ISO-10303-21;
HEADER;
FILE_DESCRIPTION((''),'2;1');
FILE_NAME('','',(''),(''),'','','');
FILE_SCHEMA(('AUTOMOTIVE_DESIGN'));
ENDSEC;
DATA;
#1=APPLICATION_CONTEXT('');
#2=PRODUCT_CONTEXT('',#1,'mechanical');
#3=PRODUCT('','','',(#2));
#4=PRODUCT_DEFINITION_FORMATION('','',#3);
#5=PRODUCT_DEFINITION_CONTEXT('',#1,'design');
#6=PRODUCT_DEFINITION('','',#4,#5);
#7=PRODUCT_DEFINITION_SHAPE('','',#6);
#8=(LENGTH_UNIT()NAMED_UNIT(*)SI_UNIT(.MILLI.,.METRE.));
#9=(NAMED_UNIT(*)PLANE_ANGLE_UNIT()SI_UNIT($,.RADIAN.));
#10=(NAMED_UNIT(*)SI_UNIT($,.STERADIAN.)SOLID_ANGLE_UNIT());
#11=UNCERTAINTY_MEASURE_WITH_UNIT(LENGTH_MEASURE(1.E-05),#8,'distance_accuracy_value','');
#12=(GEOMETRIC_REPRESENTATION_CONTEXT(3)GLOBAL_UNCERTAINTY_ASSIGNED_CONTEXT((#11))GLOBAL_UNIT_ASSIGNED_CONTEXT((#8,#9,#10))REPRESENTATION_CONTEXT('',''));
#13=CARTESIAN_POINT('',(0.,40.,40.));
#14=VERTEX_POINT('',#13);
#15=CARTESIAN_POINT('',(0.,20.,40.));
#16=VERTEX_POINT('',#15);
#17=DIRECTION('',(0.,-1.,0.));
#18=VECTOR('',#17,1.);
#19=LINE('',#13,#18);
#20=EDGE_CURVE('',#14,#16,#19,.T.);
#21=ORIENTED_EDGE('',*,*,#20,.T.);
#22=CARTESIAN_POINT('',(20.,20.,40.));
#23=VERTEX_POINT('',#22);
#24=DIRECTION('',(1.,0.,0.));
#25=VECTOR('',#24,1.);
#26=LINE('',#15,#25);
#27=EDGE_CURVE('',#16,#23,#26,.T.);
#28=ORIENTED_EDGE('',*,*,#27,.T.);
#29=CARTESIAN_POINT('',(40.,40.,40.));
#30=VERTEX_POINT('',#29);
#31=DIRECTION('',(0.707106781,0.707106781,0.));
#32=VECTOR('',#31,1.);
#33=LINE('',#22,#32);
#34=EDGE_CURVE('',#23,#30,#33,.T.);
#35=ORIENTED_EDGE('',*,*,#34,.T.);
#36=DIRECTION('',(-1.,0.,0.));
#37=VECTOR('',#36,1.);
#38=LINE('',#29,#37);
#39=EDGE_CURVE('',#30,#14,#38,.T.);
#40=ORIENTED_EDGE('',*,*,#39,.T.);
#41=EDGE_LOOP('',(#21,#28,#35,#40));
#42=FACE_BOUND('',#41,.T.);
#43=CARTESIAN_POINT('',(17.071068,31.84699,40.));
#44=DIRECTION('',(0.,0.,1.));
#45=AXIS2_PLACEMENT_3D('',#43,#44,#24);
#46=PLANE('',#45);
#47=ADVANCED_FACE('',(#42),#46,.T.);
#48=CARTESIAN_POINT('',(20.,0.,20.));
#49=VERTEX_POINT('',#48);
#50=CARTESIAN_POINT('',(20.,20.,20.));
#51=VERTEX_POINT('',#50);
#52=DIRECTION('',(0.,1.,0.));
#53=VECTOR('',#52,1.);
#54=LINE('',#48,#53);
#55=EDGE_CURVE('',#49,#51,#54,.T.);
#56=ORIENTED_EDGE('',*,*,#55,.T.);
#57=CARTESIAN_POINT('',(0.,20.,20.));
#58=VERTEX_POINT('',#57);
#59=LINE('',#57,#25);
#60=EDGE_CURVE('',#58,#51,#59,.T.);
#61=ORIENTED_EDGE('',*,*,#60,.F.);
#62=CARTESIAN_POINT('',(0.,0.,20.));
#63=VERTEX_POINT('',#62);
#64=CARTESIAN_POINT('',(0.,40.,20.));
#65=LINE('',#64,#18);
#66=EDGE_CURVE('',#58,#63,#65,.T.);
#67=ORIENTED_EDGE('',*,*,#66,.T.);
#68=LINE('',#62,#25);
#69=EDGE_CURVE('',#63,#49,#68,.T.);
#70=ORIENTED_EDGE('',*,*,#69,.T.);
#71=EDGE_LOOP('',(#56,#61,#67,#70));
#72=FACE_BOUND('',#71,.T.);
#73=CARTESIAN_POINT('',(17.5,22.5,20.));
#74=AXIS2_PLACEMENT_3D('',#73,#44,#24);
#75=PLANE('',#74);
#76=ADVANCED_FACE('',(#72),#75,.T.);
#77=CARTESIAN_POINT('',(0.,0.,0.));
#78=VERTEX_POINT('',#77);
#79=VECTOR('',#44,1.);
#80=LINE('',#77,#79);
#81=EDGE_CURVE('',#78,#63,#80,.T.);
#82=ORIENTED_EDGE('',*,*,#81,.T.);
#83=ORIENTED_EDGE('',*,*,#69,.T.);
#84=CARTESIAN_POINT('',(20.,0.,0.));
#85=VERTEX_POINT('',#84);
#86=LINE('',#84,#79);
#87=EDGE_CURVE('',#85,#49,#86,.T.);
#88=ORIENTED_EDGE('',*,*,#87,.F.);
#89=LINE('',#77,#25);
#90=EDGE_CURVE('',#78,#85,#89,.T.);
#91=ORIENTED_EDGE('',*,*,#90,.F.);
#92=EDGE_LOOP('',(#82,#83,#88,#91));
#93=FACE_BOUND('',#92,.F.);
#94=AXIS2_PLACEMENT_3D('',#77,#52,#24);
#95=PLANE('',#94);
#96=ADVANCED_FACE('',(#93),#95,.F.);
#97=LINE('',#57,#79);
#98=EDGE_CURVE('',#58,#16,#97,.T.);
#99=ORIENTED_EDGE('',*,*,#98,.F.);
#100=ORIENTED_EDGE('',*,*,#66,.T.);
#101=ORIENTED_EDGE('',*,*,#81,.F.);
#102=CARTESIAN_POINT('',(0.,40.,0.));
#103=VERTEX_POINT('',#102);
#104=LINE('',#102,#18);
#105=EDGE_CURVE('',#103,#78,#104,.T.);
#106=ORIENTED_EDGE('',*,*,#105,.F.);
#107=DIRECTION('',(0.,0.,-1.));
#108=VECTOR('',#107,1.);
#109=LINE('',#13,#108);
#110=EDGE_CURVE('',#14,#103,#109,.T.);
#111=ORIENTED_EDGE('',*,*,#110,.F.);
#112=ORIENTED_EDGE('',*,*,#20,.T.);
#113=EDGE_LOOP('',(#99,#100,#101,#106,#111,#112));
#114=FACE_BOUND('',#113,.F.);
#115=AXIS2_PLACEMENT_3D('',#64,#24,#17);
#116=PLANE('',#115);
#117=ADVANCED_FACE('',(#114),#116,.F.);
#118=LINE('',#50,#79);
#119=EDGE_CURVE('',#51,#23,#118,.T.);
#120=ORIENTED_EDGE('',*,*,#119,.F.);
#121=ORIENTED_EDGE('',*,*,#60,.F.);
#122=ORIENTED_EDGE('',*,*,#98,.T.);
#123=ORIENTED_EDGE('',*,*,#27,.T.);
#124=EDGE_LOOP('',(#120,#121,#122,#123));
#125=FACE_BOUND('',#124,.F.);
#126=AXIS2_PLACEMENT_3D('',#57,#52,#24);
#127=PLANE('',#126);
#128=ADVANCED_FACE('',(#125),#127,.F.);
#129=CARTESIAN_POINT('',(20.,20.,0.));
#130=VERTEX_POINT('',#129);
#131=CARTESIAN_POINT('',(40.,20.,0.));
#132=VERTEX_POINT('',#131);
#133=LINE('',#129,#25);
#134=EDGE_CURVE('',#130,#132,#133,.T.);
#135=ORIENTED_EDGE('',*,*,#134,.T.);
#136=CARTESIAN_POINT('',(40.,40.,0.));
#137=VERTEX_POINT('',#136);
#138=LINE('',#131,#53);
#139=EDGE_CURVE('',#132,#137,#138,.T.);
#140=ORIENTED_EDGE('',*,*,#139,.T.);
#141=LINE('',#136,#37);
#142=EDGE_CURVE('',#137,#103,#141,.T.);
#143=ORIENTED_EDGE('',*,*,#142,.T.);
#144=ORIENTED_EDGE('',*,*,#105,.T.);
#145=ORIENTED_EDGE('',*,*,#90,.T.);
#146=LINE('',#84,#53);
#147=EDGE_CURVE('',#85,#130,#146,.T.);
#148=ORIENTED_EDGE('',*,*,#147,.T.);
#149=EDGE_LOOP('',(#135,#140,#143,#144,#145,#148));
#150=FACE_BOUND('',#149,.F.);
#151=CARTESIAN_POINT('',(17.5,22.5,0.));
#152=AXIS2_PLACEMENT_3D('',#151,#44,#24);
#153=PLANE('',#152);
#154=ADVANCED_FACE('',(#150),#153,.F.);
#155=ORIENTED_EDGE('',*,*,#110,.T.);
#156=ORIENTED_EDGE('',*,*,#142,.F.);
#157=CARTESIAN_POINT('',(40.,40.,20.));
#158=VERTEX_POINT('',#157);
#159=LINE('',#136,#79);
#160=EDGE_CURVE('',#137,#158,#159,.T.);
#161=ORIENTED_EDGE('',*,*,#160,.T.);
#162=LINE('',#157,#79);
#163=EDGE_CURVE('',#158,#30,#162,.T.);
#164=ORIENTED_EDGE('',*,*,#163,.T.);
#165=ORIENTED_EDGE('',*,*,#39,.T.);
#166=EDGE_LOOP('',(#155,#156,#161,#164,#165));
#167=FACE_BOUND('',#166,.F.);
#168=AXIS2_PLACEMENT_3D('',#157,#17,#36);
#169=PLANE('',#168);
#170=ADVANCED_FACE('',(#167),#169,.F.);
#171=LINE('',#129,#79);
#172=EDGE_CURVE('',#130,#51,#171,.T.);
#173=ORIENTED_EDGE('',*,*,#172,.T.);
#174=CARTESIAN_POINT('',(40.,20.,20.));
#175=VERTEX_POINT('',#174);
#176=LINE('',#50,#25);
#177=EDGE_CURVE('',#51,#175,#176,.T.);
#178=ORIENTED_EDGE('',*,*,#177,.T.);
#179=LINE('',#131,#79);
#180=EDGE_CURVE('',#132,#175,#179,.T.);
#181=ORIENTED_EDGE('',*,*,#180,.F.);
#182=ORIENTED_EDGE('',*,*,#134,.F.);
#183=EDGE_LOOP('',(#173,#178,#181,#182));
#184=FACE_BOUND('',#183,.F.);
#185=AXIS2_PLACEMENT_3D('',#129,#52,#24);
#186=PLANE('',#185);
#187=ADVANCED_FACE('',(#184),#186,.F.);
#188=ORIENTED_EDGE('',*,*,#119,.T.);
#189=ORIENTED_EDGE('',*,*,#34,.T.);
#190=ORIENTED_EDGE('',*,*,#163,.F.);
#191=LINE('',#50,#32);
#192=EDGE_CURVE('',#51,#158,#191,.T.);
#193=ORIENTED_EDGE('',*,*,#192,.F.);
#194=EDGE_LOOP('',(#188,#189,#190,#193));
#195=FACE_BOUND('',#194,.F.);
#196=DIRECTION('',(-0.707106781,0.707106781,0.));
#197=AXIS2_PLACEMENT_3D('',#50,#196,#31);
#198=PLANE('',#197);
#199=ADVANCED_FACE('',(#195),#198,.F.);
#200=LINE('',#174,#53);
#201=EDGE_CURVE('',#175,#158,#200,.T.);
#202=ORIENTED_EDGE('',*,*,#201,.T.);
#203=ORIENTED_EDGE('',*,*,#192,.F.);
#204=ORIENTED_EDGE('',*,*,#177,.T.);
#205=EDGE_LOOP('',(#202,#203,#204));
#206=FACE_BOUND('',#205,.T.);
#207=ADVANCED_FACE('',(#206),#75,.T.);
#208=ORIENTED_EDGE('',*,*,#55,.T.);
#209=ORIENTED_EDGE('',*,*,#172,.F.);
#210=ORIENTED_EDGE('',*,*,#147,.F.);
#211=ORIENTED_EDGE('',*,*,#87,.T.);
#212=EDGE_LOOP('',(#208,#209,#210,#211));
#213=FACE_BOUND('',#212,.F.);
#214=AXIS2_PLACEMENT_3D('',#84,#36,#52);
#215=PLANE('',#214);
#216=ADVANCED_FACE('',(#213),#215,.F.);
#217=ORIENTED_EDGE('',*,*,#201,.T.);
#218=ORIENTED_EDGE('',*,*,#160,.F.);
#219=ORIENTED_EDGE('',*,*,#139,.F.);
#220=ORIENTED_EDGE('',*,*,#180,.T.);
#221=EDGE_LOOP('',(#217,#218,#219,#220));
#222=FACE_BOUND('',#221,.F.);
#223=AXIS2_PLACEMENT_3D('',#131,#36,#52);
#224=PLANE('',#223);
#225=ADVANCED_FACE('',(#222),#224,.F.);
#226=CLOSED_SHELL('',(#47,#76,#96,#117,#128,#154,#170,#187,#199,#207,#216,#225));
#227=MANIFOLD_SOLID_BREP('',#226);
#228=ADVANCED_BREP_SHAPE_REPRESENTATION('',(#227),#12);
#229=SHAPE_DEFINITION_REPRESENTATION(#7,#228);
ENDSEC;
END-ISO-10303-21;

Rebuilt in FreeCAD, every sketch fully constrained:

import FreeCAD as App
import Part
import Sketcher
from FreeCAD import Vector
Q = App.Units.Quantity


def add_polygon(sketch, points):
    """Adds a closed chain of lines whose ends are joined by coincident constraints."""
    first, n = sketch.GeometryCount, len(points)
    for a, b in zip(points, points[1:] + points[:1]):
        sketch.addGeometry(Part.LineSegment(App.Vector(*a, 0), App.Vector(*b, 0)), False)
    for i in range(n):
        sketch.addConstraint(Sketcher.Constraint("Coincident", first + i, 2, first + (i + 1) % n, 1))

doc = App.newDocument("Part")
body = doc.addObject("PartDesign::Body", "Body")

# Sketch on XY plane
sketch1 = doc.addObject("Sketcher::SketchObject", "Sketch")
body.addObject(sketch1)
sketch1.AttachmentSupport = (doc.XY_Plane, [""])
sketch1.MapMode = "FlatFace"
add_polygon(sketch1, [(0, 40), (0, 0), (20, 0), (20, 20), (40, 20), (40, 40)])  # lines 0-5
sketch1.addConstraint([
    Sketcher.Constraint("Vertical", 0),
    Sketcher.Constraint("Horizontal", 1),
    Sketcher.Constraint("Vertical", 2),
    Sketcher.Constraint("Horizontal", 3),
    Sketcher.Constraint("Vertical", 4),
    Sketcher.Constraint("Horizontal", 5),
    Sketcher.Constraint("Coincident", 0, 2, -1, 1),
    Sketcher.Constraint("Equal", 1, 3),
    Sketcher.Constraint("Equal", 5, 0),
    Sketcher.Constraint("Equal", 3, 2),
    Sketcher.Constraint("DistanceX", 1, 1, 1, 2, Q("20 mm")),
])
pad1 = doc.addObject("PartDesign::Pad", "Pad")
body.addObject(pad1)
pad1.Profile = sketch1
pad1.Length = 20

# Sketch on XY plane
sketch2 = doc.addObject("Sketcher::SketchObject", "Sketch001")
body.addObject(sketch2)
sketch2.AttachmentSupport = (doc.XY_Plane, [""])
sketch2.MapMode = "FlatFace"
sketch2.AttachmentOffset = App.Placement(Vector(0, 0, 20), App.Rotation())
add_polygon(sketch2, [(0, 20), (20, 20), (40, 40), (0, 40)])  # lines 0-3
sketch2.addConstraint([
    Sketcher.Constraint("Horizontal", 0),
    Sketcher.Constraint("Horizontal", 2),
    Sketcher.Constraint("Vertical", 3),
    Sketcher.Constraint("PointOnObject", 2, 2, -2),
    Sketcher.Constraint("Equal", 0, 3),
    Sketcher.Constraint("DistanceX", 0, 1, 0, 2, Q("20 mm")),
    Sketcher.Constraint("DistanceX", 2, 2, 2, 1, Q("40 mm")),
    Sketcher.Constraint("DistanceY", -1, 1, 0, 2, Q("20 mm")),
])
pad2 = doc.addObject("PartDesign::Pad", "Pad001")
body.addObject(pad2)
pad2.Profile = sketch2
pad2.Length = 20

doc.recompute()
